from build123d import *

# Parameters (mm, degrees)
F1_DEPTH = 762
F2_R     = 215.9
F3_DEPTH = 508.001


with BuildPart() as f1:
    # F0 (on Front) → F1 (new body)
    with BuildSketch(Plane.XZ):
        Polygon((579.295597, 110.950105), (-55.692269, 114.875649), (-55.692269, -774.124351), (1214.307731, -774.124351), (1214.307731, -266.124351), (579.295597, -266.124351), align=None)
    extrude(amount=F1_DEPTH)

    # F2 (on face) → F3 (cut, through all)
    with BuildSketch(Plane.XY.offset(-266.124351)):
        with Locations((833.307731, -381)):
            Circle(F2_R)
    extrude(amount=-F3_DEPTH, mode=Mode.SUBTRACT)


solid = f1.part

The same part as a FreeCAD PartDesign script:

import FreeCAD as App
import Part
import Sketcher
from FreeCAD import Vector
Q = App.Units.Quantity

doc = App.newDocument("Part")
body = doc.addObject("PartDesign::Body", "Body")

# Sketch on XZ plane
sketch1 = doc.addObject("Sketcher::SketchObject", "Sketch")
body.addObject(sketch1)
sketch1.AttachmentSupport = (doc.XZ_Plane, [""])
sketch1.MapMode = "FlatFace"
sketch1.addGeometry(Part.LineSegment(Vector(579, 111, 0), Vector(-56, 115, 0)), False)
sketch1.addGeometry(Part.LineSegment(Vector(-56, 115, 0), Vector(-56, -774, 0)), False)
sketch1.addGeometry(Part.LineSegment(Vector(-56, -774, 0), Vector(1214, -774, 0)), False)
sketch1.addGeometry(Part.LineSegment(Vector(1214, -774, 0), Vector(1214, -266, 0)), False)
sketch1.addGeometry(Part.LineSegment(Vector(1214, -266, 0), Vector(579, -266, 0)), False)
sketch1.addGeometry(Part.LineSegment(Vector(579, -266, 0), Vector(579, 111, 0)), False)
sketch1.addConstraint(Sketcher.Constraint("Coincident", 0, 2, 1, 1))
sketch1.addConstraint(Sketcher.Constraint("Coincident", 1, 2, 2, 1))
sketch1.addConstraint(Sketcher.Constraint("Coincident", 2, 2, 3, 1))
sketch1.addConstraint(Sketcher.Constraint("Coincident", 3, 2, 4, 1))
sketch1.addConstraint(Sketcher.Constraint("Coincident", 4, 2, 5, 1))
sketch1.addConstraint(Sketcher.Constraint("Coincident", 5, 2, 0, 1))
sketch1.addConstraint(Sketcher.Constraint("Vertical", 1))
sketch1.addConstraint(Sketcher.Constraint("Horizontal", 2))
sketch1.addConstraint(Sketcher.Constraint("Vertical", 3))
sketch1.addConstraint(Sketcher.Constraint("Horizontal", 4))
sketch1.addConstraint(Sketcher.Constraint("Vertical", 5))
sketch1.addConstraint(Sketcher.Constraint("DistanceX", 2, 1, 2, 2, Q("50 in")))
sketch1.addConstraint(Sketcher.Constraint("DistanceY", 1, 2, 1, 1, Q("35 in")))
sketch1.addConstraint(Sketcher.Constraint("DistanceY", 3, 1, 3, 2, Q("20 in")))
sketch1.addConstraint(Sketcher.Constraint("Distance", 0, Q("25 in")))
sketch1.addConstraint(Sketcher.Constraint("DistanceX", 4, 2, 4, 1, Q("635.012134 mm")))
sketch1.addConstraint(Sketcher.Constraint("DistanceX", 0, 2, -1, 1, Q("55.692269 mm")))
sketch1.addConstraint(Sketcher.Constraint("DistanceY", -1, 1, 0, 2, Q("114.875649 mm")))
pad1 = doc.addObject("PartDesign::Pad", "Pad")
body.addObject(pad1)
pad1.Profile = sketch1
pad1.Length = Q("30 in")

# Sketch on XY plane
sketch2 = doc.addObject("Sketcher::SketchObject", "Sketch001")
body.addObject(sketch2)
sketch2.AttachmentSupport = (doc.XY_Plane, [""])
sketch2.MapMode = "FlatFace"
sketch2.AttachmentOffset = App.Placement(Vector(0, 0, -266.124351), App.Rotation())
sketch2.addGeometry(Part.Circle(Vector(833, -381, 0), Vector(0, 0, 1), 216), False)
sketch2.addConstraint(Sketcher.Constraint("Diameter", 0, Q("17 in")))
sketch2.addConstraint(Sketcher.Constraint("DistanceY", 0, 3, -1, 1, Q("15 in")))
sketch2.addConstraint(Sketcher.Constraint("DistanceX", -1, 1, 0, 3, Q("833.307731 mm")))
pocket1 = doc.addObject("PartDesign::Pocket", "Pocket")
body.addObject(pocket1)
pocket1.Profile = sketch2
pocket1.Type = "ThroughAll"

doc.recompute()
